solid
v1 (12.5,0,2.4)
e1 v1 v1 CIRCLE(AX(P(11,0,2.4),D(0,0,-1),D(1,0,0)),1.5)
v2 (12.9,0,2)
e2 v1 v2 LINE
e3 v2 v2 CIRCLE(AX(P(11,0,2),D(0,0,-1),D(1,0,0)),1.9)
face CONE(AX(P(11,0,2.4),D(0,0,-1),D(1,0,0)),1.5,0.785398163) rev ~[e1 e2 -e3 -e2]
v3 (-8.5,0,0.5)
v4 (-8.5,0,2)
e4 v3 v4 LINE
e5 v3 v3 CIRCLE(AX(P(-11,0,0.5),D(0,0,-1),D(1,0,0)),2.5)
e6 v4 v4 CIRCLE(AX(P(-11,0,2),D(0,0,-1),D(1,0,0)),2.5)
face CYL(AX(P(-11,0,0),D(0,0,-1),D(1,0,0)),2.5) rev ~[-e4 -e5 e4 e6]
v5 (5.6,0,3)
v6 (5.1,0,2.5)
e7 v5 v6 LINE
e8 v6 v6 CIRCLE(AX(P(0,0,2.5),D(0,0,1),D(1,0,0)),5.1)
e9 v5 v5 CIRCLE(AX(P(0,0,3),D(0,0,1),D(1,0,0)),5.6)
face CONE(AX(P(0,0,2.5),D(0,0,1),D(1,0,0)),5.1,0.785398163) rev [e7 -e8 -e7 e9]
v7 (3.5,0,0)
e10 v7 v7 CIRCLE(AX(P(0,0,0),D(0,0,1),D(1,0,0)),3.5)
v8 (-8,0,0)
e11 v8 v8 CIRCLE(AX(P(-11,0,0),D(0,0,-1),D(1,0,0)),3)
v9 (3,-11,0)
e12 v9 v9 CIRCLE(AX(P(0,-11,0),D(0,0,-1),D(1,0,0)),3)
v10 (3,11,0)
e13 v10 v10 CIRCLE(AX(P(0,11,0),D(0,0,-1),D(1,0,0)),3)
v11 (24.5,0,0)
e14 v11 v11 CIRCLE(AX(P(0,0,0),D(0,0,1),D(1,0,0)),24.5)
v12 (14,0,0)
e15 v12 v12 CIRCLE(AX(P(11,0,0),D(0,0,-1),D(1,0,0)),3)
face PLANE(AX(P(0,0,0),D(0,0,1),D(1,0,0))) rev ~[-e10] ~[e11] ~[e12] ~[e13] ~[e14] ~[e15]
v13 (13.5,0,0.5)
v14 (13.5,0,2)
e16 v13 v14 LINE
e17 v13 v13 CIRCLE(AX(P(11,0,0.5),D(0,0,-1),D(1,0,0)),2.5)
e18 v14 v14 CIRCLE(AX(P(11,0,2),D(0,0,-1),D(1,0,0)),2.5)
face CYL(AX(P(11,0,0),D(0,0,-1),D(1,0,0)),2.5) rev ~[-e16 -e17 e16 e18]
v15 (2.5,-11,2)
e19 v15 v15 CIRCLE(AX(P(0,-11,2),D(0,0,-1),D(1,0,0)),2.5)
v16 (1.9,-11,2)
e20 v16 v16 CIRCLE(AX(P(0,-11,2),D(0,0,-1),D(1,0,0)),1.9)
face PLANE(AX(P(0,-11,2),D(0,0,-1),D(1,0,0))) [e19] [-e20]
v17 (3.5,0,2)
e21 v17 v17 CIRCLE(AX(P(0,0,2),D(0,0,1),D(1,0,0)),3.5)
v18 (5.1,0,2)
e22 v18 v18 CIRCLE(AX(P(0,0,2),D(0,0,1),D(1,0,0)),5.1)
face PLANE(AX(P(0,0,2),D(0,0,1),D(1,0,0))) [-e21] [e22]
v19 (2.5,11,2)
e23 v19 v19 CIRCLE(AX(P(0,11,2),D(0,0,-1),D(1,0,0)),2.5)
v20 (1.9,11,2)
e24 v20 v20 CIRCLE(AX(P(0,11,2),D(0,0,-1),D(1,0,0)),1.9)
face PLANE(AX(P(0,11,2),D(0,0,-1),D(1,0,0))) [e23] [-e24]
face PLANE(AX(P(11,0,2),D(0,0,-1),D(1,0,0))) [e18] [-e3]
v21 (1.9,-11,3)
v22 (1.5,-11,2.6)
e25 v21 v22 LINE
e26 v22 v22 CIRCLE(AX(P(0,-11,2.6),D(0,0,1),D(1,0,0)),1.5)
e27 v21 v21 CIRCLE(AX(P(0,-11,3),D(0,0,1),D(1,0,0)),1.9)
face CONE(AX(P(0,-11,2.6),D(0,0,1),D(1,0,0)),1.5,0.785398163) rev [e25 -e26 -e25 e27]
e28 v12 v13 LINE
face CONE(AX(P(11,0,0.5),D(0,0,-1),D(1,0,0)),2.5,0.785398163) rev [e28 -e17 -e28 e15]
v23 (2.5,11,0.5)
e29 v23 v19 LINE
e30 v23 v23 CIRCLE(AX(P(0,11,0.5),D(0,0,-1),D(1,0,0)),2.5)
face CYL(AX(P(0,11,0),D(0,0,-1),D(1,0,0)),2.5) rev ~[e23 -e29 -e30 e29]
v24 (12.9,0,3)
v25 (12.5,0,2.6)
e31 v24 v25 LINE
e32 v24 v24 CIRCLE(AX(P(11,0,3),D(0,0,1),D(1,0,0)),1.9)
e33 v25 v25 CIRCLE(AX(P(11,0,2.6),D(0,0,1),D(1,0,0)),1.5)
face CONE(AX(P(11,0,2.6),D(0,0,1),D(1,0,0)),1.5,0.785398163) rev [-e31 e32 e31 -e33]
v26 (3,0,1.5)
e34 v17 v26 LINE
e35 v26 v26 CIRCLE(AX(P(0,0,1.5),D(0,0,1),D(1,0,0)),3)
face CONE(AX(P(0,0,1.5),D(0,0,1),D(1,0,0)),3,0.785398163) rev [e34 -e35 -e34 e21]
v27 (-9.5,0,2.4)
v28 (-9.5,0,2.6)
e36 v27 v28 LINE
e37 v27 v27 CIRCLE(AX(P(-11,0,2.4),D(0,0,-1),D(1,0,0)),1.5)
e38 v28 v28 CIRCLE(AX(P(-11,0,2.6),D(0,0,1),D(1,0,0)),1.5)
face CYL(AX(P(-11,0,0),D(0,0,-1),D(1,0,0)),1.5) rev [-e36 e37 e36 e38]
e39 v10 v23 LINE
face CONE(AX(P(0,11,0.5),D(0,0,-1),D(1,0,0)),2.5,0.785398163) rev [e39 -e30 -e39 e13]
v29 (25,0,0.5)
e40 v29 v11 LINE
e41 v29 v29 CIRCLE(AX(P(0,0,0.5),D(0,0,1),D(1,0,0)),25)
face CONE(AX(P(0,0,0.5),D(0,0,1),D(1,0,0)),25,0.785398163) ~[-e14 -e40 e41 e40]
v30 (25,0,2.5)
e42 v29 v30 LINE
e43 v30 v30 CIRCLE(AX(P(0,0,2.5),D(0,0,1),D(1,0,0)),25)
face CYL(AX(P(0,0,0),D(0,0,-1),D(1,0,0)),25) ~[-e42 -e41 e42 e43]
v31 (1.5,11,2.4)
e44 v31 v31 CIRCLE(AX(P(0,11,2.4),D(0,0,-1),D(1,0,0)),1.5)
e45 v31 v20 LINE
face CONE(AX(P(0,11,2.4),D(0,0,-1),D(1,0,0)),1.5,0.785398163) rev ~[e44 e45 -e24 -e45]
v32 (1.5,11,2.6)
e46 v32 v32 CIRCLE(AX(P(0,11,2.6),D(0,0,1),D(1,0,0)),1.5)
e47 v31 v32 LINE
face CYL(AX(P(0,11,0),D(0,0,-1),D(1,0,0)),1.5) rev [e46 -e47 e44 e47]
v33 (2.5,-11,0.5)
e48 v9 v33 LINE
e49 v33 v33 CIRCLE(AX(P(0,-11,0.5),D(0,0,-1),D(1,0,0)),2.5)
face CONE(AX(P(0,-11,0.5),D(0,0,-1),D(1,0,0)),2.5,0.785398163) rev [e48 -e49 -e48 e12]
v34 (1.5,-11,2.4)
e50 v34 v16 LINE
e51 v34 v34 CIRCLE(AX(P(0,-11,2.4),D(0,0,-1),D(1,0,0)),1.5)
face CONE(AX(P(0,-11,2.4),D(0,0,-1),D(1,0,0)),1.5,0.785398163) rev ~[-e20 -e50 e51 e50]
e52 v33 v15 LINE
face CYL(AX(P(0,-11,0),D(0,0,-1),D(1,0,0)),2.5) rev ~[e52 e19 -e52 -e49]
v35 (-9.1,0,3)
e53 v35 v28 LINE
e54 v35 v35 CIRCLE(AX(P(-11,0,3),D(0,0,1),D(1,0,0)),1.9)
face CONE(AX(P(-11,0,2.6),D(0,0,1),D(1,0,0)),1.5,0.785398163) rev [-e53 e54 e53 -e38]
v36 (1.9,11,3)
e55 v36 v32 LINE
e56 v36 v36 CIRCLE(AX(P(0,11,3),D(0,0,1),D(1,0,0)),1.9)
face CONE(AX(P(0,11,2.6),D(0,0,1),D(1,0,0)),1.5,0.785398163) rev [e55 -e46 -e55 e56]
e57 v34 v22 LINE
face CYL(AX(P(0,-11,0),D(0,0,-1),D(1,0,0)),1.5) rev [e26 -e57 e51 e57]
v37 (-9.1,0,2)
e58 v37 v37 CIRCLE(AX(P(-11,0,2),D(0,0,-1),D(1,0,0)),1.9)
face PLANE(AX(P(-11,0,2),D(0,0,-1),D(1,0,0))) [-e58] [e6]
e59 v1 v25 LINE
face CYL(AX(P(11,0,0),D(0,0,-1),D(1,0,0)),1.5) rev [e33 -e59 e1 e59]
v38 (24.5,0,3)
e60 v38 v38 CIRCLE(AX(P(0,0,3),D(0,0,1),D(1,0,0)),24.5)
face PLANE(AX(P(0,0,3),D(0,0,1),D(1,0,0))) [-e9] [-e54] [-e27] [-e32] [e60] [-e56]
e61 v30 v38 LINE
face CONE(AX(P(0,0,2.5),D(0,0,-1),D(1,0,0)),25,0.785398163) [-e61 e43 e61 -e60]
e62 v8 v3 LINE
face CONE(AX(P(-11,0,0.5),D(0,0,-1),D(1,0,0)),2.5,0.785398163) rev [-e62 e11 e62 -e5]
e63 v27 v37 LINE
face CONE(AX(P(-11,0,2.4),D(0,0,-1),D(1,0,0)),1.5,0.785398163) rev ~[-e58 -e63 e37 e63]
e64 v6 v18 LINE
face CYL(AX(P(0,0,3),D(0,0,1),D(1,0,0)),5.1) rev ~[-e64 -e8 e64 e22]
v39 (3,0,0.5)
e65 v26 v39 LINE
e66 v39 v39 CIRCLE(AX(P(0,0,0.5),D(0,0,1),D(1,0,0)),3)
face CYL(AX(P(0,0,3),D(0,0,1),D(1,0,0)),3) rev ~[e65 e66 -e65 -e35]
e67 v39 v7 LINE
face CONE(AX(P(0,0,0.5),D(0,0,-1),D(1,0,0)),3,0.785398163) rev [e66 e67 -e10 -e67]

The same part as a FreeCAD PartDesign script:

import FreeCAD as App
import Part
import Sketcher
Q = App.Units.Quantity


def edges_at(feature, points):
    """Names of the edges that pass closest to the given points."""
    edges = feature.Shape.Edges
    near = lambda p: min(range(len(edges)), key=lambda i: edges[i].distToShape(Part.Vertex(*p))[0])
    return sorted({f"Edge{near(p) + 1}" for p in points})

doc = App.newDocument("Part")
params = doc.addObject("Spreadsheet::Sheet", "Params")
for row, (alias, value) in enumerate([
    ("sketch1_diameter", "50 mm"),
    ("sketch1_diameter2", "3 mm"),
    ("pad1_length", "3 mm"),
    ("sketch2_diameter", "6 mm"),
    ("pocket1_length", "4 mm"),
    ("sketch3_diameter", "10.2 mm"),
    ("pocket2_length", "1 mm"),
    ("sketch4_diameter", "5 mm"),
    ("pocket3_length", "2 mm"),
    ("chamfer_size", "0.5 mm"),
    ("chamfer2_size", "0.5 mm"),
    ("chamfer3_size", "0.5 mm"),
    ("chamfer4_size", "0.4 mm"),
    ("chamfer5_size", "0.5 mm"),
], start=1):
    params.set(f"A{row}", alias)
    params.set(f"B{row}", "=" + value)
    params.setAlias(f"B{row}", alias)

body = doc.addObject("PartDesign::Body", "Body")

# Sketch on XY plane
sketch1 = body.newObject("Sketcher::SketchObject", "Sketch")
sketch1.AttachmentSupport = (doc.getObject("XY_Plane"), [""])
sketch1.MapMode = "FlatFace"
sketch1.addGeometry([
    Part.Circle(App.Vector(0, 0, 0), App.Vector(0, 0, 1), 25),  # 0
    Part.Circle(App.Vector(0, -11, 0), App.Vector(0, 0, 1), 1.5),  # 1
    Part.Circle(App.Vector(-11, 0, 0), App.Vector(0, 0, 1), 1.5),  # 2
    Part.Circle(App.Vector(11, 0, 0), App.Vector(0, 0, 1), 1.5),  # 3
    Part.Circle(App.Vector(0, 11, 0), App.Vector(0, 0, 1), 1.5),  # 4
], False)
sketch1.addConstraint([
    Sketcher.Constraint("Coincident", 0, 3, -1, 1),
    Sketcher.Constraint("Equal", 1, 2),
    Sketcher.Constraint("Equal", 2, 3),
    Sketcher.Constraint("Equal", 3, 4),
    Sketcher.Constraint("Symmetric", 2, 3, 3, 3, -1, 1),
    Sketcher.Constraint("Symmetric", 1, 3, 4, 3, -1, 1),
    Sketcher.Constraint("PointOnObject", 1, 3, -2),
    Sketcher.Constraint("PointOnObject", 2, 3, -1),
    Sketcher.Constraint("Diameter", 0, Q("50 mm")),
    Sketcher.Constraint("Diameter", 1, Q("3 mm")),
    Sketcher.Constraint("DistanceY", 1, 3, -1, 1, Q("11 mm")),
    Sketcher.Constraint("DistanceX", 2, 3, -1, 1, Q("11 mm")),
])
sketch1.setExpression("Constraints[8]", "Params.sketch1_diameter")
sketch1.setExpression("Constraints[9]", "Params.sketch1_diameter2")
pad1 = body.newObject("PartDesign::Pad", "Pad")
pad1.Profile = sketch1
pad1.setExpression("Length", "Params.pad1_length")

# Sketch on XY plane
sketch2 = body.newObject("Sketcher::SketchObject", "Sketch001")
sketch2.AttachmentSupport = (doc.getObject("XY_Plane"), [""])
sketch2.MapMode = "FlatFace"
sketch2.AttachmentOffset = App.Placement(App.Vector(0, 0, 3), App.Rotation())
sketch2.addGeometry(Part.Circle(App.Vector(0, 0, 0), App.Vector(0, 0, 1), 3), False)
sketch2.addConstraint([
    Sketcher.Constraint("Coincident", 0, 3, -1, 1),
    Sketcher.Constraint("Diameter", 0, Q("6 mm")),
])
sketch2.setExpression("Constraints[1]", "Params.sketch2_diameter")
pocket1 = body.newObject("PartDesign::Pocket", "Pocket")
pocket1.Profile = sketch2
pocket1.setExpression("Length", "Params.pocket1_length")

# Sketch on XY plane
sketch3 = body.newObject("Sketcher::SketchObject", "Sketch002")
sketch3.AttachmentSupport = (doc.getObject("XY_Plane"), [""])
sketch3.MapMode = "FlatFace"
sketch3.AttachmentOffset = App.Placement(App.Vector(0, 0, 3), App.Rotation())
sketch3.addGeometry(Part.Circle(App.Vector(0, 0, 0), App.Vector(0, 0, 1), 5), False)
sketch3.addConstraint([
    Sketcher.Constraint("Coincident", 0, 3, -1, 1),
    Sketcher.Constraint("Diameter", 0, Q("10.2 mm")),
])
sketch3.setExpression("Constraints[1]", "Params.sketch3_diameter")
pocket2 = body.newObject("PartDesign::Pocket", "Pocket001")
pocket2.Profile = sketch3
pocket2.setExpression("Length", "Params.pocket2_length")

# Sketch on XY plane
sketch4 = body.newObject("Sketcher::SketchObject", "Sketch003")
sketch4.AttachmentSupport = (doc.getObject("XY_Plane"), [""])
sketch4.MapMode = "FlatFace"
sketch4.addGeometry([
    Part.Circle(App.Vector(0, -11, 0), App.Vector(0, 0, 1), 2.5),
    Part.Circle(App.Vector(11, 0, 0), App.Vector(0, 0, 1), 2.5),
    Part.Circle(App.Vector(0, 11, 0), App.Vector(0, 0, 1), 2.5),
    Part.Circle(App.Vector(-11, 0, 0), App.Vector(0, 0, 1), 2.5),
], False)
sketch4.addConstraint([
    Sketcher.Constraint("Equal", 0, 1),
    Sketcher.Constraint("Equal", 1, 2),
    Sketcher.Constraint("Equal", 2, 3),
    Sketcher.Constraint("Symmetric", 0, 3, 2, 3, -1, 1),
    Sketcher.Constraint("Symmetric", 1, 3, 3, 3, -1, 1),
    Sketcher.Constraint("PointOnObject", 0, 3, -2),
    Sketcher.Constraint("PointOnObject", 1, 3, -1),
    Sketcher.Constraint("Diameter", 0, Q("5 mm")),
    Sketcher.Constraint("DistanceY", 0, 3, -1, 1, Q("11 mm")),
    Sketcher.Constraint("DistanceX", -1, 1, 1, 3, Q("11 mm")),
])
sketch4.setExpression("Constraints[7]", "Params.sketch4_diameter")
pocket3 = body.newObject("PartDesign::Pocket", "Pocket002")
pocket3.Profile = sketch4
pocket3.setExpression("Length", "Params.pocket3_length")
pocket3.Reversed = True
doc.recompute()

chamfer = body.newObject("PartDesign::Chamfer", "Chamfer")
chamfer.Base = (pocket3, edges_at(pocket3, [(-25, 0, 3), (-25, 0, 0)]))
chamfer.setExpression("Size", "Params.chamfer_size")
doc.recompute()

chamfer2 = body.newObject("PartDesign::Chamfer", "Chamfer001")
chamfer2.Base = (chamfer, edges_at(chamfer, [(-5.1, 0, 3)]))
chamfer2.setExpression("Size", "Params.chamfer2_size")
doc.recompute()

chamfer3 = body.newObject("PartDesign::Chamfer", "Chamfer002")
chamfer3.Base = (chamfer2, edges_at(chamfer2, [(-3, 0, 2), (-3, 0, 0)]))
chamfer3.setExpression("Size", "Params.chamfer3_size")
doc.recompute()

chamfer4 = body.newObject("PartDesign::Chamfer", "Chamfer003")
chamfer4.Base = (chamfer3, edges_at(chamfer3, [
    (-1.5, 11, 3),
    (-1.5, 11, 2),
    (-12.5, 0, 3),
    (-12.5, 0, 2),
    (9.5, 0, 3),
    (9.5, 0, 2),
    (-1.5, -11, 3),
    (-1.5, -11, 2),
]))
chamfer4.setExpression("Size", "Params.chamfer4_size")
doc.recompute()

chamfer5 = body.newObject("PartDesign::Chamfer", "Chamfer004")
chamfer5.Base = (chamfer4, edges_at(chamfer4, [
    (-13.5, 0, 0),
    (-2.5, 11, 0),
    (8.5, 0, 0),
    (-2.5, -11, 0),
]))
chamfer5.setExpression("Size", "Params.chamfer5_size")

doc.recompute()
